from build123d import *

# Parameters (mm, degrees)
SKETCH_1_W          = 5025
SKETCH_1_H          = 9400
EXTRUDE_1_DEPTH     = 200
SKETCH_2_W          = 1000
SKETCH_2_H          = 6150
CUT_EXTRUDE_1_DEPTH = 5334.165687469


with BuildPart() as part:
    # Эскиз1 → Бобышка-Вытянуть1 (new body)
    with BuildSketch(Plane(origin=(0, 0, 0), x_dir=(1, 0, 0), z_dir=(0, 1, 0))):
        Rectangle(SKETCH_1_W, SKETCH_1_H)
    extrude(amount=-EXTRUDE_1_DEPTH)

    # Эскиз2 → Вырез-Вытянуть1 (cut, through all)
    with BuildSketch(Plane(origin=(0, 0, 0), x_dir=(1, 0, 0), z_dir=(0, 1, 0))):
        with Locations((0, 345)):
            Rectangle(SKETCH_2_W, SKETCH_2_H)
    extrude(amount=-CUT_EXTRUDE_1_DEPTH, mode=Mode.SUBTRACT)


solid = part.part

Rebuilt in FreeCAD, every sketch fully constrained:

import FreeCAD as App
import Part
import Sketcher

V = App.Vector


def add_polygon(sketch, points):
    """Adds a closed chain of lines whose ends are joined by coincident constraints."""
    first, n = sketch.GeometryCount, len(points)
    for a, b in zip(points, points[1:] + points[:1]):
        sketch.addGeometry(Part.LineSegment(App.Vector(*a, 0), App.Vector(*b, 0)), False)
    for i in range(n):
        sketch.addConstraint(Sketcher.Constraint("Coincident", first + i, 2, first + (i + 1) % n, 1))

doc = App.newDocument("Part")
body = doc.addObject("PartDesign::Body", "Body")

# Sketch on XZ plane
sketch1 = body.newObject("Sketcher::SketchObject", "Sketch")
sketch1.AttachmentSupport = (doc.getObject("XZ_Plane"), [""])
sketch1.MapMode = "FlatFace"
add_polygon(sketch1, [(-2512, -4700), (-2512, 4700), (2512, 4700), (2512, -4700)])  # lines 0-3
sketch1.addConstraint([
    Sketcher.Constraint("Vertical", 0),
    Sketcher.Constraint("Horizontal", 1),
    Sketcher.Constraint("Vertical", 2),
    Sketcher.Constraint("Horizontal", 3),
    Sketcher.Constraint("Symmetric", 0, 2, 2, 2, -1, 1),
    Sketcher.Constraint("DistanceX", 1, 1, 1, 2, 5025.0),
    Sketcher.Constraint("DistanceY", 0, 1, 0, 2, 9400.0),
])
pad1 = body.newObject("PartDesign::Pad", "Pad")
pad1.Profile = sketch1
pad1.Length = 200

# Sketch on XZ plane
sketch2 = body.newObject("Sketcher::SketchObject", "Sketch001")
sketch2.AttachmentSupport = (doc.getObject("XZ_Plane"), [""])
sketch2.MapMode = "FlatFace"
add_polygon(sketch2, [(-500, -3420), (-500, 2730), (500, 2730), (500, -3420)])  # lines 0-3
sketch2.addConstraint([
    Sketcher.Constraint("Vertical", 0),
    Sketcher.Constraint("Horizontal", 1),
    Sketcher.Constraint("Vertical", 2),
    Sketcher.Constraint("Horizontal", 3),
    Sketcher.Constraint("DistanceX", 1, 1, 1, 2, 1000.0),
    Sketcher.Constraint("DistanceY", 0, 1, 0, 2, 6150.0),
    Sketcher.Constraint("DistanceX", 0, 2, -1, 1, 500.0),
    Sketcher.Constraint("DistanceY", -1, 1, 0, 2, 2730.0),
])
pocket1 = body.newObject("PartDesign::Pocket", "Pocket")
pocket1.Profile = sketch2
pocket1.Type = "ThroughAll"
pocket1.Reversed = True

doc.recompute()
